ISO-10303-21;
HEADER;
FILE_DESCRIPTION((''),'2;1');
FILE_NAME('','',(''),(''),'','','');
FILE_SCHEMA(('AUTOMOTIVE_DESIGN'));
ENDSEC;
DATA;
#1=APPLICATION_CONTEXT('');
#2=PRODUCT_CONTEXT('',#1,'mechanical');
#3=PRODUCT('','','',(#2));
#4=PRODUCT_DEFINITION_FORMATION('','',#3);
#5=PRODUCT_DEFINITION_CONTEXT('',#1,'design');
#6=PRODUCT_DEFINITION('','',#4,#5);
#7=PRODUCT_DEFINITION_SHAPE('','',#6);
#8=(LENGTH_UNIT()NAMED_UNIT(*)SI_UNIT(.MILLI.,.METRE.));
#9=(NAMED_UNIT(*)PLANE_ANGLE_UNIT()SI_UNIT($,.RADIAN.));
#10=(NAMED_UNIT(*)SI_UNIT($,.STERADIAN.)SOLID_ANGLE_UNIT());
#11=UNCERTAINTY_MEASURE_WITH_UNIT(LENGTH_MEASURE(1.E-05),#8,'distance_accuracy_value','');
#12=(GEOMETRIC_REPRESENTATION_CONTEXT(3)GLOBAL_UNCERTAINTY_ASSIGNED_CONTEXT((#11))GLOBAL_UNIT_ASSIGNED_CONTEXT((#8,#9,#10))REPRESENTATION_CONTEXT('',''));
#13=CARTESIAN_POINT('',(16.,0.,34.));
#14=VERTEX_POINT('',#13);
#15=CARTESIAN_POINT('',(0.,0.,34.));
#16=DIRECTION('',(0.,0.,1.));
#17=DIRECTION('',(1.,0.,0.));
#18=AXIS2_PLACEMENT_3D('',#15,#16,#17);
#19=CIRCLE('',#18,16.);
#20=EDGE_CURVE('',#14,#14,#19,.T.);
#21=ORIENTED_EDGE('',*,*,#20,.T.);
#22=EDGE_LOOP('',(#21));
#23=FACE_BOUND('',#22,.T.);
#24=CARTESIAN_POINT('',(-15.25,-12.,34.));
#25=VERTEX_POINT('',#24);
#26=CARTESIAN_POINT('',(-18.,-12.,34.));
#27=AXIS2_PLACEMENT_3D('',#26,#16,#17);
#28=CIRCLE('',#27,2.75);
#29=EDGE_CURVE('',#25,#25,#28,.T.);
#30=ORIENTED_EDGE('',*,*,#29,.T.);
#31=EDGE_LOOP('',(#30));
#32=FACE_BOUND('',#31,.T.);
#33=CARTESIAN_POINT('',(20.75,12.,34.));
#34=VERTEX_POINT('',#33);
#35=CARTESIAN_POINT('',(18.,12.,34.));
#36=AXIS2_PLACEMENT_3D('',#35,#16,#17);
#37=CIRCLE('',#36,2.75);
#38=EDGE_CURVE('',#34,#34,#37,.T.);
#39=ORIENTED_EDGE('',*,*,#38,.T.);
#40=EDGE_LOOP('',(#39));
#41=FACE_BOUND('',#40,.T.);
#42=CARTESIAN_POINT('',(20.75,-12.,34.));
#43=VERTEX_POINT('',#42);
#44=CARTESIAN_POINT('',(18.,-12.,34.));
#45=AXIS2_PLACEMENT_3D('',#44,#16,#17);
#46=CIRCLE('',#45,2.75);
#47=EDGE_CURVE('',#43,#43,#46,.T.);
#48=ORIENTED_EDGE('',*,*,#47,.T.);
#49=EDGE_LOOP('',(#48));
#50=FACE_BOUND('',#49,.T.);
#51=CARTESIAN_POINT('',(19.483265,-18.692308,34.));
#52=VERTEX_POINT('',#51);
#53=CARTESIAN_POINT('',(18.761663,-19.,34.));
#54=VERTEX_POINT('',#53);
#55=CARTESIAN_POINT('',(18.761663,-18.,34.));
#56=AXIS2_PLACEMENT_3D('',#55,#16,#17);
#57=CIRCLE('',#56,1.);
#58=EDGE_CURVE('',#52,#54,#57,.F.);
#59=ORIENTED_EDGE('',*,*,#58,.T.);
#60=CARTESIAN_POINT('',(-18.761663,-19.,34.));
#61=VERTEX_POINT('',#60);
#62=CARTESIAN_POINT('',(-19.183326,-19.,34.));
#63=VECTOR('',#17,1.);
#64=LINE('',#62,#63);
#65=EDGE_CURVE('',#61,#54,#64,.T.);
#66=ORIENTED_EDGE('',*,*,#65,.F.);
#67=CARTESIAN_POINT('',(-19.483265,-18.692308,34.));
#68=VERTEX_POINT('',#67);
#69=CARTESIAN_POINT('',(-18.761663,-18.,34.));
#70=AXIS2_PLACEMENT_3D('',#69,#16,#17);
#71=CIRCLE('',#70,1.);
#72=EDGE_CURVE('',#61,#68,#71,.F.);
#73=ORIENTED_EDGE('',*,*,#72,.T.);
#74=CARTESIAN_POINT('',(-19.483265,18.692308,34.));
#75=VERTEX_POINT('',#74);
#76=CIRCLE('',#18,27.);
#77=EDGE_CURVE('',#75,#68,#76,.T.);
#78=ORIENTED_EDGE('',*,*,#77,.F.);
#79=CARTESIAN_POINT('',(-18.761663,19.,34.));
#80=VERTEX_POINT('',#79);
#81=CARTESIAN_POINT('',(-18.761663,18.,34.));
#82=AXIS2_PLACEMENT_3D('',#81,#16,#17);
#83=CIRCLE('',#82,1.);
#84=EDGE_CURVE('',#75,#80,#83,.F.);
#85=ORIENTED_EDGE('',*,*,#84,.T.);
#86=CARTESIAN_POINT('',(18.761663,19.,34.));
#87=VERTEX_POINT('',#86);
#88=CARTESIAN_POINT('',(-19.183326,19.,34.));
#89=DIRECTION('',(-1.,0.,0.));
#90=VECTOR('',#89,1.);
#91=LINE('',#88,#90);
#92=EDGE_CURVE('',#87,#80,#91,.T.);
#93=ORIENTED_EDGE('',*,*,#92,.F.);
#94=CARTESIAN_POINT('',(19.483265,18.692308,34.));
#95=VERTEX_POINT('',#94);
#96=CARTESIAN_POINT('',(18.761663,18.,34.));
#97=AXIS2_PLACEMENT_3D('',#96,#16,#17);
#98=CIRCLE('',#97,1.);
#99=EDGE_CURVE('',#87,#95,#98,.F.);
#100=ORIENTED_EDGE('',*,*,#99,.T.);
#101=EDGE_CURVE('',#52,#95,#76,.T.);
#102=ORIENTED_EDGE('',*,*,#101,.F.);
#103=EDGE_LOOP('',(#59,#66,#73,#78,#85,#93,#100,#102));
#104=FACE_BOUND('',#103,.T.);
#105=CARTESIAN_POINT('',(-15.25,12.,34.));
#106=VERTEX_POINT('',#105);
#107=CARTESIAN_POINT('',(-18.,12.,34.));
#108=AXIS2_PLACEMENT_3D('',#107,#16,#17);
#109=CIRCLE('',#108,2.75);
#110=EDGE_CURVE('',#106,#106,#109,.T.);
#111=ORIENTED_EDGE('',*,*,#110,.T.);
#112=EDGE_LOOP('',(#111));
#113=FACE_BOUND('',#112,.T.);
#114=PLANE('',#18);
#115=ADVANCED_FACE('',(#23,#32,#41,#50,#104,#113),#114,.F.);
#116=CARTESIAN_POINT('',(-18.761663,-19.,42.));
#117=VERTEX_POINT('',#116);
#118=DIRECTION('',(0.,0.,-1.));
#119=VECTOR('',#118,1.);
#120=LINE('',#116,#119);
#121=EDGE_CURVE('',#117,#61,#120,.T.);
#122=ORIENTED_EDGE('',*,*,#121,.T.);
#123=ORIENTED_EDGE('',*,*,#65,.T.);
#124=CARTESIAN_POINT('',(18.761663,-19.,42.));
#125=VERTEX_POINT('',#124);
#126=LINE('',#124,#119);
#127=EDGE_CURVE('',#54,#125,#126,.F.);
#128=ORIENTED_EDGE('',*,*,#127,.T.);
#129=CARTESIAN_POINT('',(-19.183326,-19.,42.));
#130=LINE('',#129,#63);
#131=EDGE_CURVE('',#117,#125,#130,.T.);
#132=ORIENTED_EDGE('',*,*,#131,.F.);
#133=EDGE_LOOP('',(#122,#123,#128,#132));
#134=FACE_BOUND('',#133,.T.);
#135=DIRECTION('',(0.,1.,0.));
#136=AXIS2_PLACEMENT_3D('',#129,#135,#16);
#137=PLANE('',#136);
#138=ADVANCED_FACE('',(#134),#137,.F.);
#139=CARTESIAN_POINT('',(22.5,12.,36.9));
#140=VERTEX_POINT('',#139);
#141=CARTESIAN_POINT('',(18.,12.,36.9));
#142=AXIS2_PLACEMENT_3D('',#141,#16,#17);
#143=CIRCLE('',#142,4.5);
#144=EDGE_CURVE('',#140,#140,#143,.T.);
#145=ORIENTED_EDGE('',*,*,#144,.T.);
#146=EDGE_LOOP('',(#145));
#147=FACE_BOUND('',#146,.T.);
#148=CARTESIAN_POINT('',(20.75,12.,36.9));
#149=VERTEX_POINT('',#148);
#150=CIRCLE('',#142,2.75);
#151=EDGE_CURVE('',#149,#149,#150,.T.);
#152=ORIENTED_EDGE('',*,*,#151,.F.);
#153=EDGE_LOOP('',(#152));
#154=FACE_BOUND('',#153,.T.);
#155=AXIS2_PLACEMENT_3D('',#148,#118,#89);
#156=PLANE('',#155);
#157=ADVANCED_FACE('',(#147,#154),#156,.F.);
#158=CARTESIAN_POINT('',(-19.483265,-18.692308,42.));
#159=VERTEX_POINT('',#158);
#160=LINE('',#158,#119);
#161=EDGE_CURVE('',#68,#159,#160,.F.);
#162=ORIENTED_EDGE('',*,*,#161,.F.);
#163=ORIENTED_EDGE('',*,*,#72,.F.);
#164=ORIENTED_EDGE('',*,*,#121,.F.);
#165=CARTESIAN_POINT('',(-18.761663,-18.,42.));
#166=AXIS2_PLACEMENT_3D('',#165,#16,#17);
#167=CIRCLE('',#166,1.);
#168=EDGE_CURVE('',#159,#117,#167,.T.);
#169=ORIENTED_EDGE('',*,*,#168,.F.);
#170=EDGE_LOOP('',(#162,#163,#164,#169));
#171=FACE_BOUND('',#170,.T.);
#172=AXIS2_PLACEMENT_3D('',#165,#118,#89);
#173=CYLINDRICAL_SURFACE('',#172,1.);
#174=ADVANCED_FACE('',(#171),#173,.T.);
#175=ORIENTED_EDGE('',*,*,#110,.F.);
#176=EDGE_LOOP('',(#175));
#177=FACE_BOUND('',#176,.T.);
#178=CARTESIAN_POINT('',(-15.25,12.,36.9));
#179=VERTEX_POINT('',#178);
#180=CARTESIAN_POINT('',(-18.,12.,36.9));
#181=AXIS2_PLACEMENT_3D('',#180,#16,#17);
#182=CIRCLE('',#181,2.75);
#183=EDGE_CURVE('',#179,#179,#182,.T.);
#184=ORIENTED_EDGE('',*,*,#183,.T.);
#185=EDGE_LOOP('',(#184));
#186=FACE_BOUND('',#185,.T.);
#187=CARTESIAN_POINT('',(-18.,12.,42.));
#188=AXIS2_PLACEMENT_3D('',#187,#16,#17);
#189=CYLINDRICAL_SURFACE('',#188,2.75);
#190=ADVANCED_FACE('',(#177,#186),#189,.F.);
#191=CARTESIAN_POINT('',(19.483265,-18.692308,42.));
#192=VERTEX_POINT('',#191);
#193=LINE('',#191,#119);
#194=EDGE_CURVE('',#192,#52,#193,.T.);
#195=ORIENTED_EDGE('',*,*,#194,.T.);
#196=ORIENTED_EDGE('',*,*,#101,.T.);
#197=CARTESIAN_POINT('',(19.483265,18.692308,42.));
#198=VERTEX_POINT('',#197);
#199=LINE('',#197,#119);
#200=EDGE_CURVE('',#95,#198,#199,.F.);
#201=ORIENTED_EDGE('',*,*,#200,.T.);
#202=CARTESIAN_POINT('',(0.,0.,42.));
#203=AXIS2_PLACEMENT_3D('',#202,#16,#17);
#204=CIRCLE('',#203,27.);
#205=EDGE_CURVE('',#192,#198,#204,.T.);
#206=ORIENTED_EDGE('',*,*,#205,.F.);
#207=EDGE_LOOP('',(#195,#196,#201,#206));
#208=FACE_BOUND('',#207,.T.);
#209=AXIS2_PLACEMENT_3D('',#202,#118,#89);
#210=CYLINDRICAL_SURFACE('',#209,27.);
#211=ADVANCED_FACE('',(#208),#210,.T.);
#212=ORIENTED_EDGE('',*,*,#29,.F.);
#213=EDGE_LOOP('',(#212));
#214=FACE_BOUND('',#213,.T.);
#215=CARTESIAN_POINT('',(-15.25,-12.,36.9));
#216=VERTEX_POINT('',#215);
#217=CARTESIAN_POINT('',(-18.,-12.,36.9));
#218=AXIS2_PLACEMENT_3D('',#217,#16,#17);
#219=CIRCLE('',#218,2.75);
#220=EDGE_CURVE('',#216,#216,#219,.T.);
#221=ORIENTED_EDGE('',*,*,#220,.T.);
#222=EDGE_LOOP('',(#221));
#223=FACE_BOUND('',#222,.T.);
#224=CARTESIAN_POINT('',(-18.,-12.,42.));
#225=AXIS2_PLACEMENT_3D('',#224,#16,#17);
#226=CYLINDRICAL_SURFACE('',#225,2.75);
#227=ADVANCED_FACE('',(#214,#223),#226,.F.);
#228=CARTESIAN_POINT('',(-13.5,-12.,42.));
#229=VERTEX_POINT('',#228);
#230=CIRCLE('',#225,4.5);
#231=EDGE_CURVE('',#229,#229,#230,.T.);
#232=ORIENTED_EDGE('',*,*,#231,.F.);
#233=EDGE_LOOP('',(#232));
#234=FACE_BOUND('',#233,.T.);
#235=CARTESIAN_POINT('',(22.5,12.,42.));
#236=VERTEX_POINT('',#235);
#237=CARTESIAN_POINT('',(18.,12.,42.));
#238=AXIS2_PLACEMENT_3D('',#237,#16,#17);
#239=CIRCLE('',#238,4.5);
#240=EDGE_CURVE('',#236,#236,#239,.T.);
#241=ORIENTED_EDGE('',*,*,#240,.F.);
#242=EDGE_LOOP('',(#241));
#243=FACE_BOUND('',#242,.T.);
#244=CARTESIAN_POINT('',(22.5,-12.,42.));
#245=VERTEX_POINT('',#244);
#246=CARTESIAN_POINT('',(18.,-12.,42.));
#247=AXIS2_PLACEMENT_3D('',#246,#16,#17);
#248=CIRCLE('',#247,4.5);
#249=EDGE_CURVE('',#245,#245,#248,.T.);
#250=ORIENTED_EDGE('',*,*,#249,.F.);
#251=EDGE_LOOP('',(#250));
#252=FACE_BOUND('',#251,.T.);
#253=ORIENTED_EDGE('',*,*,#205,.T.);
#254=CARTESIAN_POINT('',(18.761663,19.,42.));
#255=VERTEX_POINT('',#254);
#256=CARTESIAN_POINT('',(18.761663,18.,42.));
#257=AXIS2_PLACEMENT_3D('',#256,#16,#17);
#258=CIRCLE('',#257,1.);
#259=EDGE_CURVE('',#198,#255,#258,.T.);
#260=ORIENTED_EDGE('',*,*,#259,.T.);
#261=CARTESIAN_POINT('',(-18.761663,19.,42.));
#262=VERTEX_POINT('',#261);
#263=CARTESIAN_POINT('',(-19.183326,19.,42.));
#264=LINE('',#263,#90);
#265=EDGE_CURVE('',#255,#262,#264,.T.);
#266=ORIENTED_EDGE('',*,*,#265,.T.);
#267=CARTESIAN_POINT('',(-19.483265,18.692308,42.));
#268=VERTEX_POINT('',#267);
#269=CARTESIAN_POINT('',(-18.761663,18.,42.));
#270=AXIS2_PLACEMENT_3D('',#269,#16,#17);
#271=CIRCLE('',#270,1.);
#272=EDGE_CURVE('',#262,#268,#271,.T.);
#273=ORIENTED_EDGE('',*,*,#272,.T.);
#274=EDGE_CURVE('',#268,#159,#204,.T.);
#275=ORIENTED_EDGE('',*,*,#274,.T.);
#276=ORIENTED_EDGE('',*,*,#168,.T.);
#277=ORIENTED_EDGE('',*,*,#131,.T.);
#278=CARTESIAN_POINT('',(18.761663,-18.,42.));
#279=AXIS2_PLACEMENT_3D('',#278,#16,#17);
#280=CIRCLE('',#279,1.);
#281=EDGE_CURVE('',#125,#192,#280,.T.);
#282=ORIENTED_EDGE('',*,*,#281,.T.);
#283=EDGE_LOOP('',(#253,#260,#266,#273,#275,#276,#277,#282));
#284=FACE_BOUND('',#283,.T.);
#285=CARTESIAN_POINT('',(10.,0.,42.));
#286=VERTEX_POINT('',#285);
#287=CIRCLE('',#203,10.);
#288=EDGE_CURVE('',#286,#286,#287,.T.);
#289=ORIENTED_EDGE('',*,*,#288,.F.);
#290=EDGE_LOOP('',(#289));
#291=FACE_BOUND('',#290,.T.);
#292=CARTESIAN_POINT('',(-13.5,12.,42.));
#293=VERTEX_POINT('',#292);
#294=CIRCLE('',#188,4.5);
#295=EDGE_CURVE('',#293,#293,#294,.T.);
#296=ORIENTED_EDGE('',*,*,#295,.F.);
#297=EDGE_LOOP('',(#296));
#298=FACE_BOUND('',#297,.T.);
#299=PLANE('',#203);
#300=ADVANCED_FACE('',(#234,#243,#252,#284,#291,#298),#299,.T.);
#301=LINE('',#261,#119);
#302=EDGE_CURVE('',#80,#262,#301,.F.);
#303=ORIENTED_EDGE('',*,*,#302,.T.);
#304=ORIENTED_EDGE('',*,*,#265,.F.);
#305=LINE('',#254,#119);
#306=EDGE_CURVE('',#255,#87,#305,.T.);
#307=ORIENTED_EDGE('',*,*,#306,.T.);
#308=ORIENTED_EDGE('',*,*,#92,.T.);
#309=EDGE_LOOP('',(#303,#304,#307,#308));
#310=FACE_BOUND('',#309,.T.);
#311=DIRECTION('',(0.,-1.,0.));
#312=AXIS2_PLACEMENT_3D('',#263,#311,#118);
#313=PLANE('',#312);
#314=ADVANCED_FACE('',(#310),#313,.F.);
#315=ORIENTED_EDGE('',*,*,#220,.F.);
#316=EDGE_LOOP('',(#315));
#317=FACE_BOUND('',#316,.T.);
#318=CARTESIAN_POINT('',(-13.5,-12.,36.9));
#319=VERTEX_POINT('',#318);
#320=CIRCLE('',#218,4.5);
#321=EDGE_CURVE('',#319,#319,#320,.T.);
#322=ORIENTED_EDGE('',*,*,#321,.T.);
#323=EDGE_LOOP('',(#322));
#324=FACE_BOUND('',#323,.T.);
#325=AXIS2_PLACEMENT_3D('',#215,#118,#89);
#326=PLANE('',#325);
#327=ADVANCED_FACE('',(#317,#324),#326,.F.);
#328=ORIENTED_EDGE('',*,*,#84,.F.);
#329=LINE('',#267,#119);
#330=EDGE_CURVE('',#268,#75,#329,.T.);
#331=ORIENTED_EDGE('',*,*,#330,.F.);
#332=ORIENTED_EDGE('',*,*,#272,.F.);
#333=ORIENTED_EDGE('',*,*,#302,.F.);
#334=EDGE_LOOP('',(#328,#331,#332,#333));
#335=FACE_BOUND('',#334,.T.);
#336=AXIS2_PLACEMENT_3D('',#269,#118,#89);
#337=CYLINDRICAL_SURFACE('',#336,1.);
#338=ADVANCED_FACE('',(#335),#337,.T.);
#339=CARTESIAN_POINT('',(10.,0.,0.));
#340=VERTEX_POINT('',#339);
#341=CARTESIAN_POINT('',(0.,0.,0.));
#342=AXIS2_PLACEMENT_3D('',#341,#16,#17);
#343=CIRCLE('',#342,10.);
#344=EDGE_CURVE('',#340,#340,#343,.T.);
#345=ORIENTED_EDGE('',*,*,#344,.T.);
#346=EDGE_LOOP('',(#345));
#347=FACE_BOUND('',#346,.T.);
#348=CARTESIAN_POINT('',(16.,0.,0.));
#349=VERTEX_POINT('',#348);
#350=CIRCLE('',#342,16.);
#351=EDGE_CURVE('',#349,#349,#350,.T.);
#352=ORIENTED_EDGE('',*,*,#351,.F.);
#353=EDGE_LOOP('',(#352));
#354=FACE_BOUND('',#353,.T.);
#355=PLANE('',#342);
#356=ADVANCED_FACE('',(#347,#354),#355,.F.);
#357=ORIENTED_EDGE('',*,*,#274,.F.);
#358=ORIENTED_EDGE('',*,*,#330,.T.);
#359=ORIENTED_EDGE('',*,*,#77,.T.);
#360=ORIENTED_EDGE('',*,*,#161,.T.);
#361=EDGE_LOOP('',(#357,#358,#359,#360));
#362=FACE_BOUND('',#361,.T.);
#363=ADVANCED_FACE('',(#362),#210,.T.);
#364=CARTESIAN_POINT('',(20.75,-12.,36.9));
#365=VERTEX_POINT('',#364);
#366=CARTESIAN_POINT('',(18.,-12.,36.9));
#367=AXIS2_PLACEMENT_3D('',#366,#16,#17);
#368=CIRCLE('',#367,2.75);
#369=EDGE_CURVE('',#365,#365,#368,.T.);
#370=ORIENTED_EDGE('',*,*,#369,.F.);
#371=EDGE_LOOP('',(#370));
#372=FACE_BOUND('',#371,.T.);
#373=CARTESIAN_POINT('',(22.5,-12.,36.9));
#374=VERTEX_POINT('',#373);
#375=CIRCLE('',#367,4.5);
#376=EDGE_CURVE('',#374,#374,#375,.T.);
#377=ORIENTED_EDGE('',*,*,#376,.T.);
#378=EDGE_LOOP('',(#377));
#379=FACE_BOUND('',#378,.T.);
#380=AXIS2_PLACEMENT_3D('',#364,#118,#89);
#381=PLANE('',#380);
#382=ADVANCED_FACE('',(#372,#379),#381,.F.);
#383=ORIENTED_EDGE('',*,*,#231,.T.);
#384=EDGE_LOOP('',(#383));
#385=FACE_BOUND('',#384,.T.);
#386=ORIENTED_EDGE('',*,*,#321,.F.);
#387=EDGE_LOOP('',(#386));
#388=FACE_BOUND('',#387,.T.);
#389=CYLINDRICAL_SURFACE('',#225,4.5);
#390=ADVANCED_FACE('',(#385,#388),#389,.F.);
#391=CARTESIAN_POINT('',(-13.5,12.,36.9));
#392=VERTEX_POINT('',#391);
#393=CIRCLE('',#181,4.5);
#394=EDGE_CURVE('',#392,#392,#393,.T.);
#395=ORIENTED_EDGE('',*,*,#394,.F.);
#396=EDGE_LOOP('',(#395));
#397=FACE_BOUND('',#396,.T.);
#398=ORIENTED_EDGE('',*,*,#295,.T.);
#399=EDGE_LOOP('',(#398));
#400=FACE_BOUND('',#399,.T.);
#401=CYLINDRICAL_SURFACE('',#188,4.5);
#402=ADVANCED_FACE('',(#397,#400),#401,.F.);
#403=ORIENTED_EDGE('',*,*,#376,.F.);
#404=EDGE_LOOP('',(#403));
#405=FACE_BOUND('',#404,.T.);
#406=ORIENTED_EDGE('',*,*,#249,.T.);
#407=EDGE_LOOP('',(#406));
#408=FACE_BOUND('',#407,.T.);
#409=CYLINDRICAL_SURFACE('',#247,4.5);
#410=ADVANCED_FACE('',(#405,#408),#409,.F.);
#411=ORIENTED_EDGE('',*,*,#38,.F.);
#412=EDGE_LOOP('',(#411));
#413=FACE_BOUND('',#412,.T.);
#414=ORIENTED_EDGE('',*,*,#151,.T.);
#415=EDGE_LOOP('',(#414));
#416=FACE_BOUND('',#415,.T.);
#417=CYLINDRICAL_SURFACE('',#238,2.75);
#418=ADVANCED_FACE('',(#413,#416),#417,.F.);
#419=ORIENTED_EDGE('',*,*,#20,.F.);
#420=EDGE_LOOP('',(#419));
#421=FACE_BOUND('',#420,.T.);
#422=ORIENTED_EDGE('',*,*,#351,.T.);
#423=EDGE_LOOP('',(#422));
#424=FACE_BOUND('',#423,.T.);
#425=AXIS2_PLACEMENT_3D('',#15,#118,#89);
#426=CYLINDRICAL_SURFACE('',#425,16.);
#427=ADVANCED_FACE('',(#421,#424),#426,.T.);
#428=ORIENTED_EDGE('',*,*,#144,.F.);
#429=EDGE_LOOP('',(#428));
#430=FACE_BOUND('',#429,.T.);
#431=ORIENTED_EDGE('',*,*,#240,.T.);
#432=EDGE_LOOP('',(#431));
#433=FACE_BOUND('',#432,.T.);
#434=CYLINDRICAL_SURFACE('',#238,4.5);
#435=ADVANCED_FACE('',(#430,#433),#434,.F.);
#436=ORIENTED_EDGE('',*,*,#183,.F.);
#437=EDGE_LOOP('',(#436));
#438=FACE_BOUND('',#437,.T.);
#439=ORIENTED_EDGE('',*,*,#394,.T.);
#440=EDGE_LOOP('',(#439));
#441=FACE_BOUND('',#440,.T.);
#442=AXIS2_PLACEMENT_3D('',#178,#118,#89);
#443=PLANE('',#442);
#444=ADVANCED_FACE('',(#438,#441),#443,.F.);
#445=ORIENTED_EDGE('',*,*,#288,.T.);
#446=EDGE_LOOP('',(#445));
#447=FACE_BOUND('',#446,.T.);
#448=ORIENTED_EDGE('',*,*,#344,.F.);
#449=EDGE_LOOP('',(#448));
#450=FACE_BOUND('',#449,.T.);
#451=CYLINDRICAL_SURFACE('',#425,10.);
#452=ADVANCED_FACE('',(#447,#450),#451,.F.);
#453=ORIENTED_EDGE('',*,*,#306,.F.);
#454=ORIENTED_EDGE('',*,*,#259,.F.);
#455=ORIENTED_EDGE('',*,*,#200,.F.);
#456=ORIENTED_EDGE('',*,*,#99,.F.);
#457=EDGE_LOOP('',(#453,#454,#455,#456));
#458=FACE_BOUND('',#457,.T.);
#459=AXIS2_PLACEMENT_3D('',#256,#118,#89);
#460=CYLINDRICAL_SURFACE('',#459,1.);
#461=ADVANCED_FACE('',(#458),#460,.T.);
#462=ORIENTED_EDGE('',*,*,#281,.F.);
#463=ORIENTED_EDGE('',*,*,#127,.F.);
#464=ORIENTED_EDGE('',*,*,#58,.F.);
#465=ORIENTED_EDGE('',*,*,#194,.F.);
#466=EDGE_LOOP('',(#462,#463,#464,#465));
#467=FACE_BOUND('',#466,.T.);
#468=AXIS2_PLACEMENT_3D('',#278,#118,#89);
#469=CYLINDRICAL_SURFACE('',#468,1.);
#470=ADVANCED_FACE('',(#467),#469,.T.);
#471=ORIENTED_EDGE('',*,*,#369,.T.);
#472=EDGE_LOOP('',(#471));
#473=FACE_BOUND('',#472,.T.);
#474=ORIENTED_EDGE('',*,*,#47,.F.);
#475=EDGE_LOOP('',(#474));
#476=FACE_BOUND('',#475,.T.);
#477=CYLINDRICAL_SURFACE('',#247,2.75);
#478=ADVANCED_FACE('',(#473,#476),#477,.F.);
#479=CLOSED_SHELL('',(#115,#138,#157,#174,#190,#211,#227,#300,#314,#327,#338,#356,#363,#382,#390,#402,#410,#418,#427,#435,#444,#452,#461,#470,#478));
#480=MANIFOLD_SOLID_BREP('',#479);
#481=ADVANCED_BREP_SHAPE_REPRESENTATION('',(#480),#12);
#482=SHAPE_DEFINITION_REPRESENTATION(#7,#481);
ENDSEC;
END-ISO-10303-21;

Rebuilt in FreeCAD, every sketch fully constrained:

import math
import FreeCAD as App
import Part
import Sketcher
Q = App.Units.Quantity


def edges_at(feature, points):
    """Names of the edges that pass closest to the given points."""
    edges = feature.Shape.Edges
    near = lambda p: min(range(len(edges)), key=lambda i: edges[i].distToShape(Part.Vertex(*p))[0])
    return sorted({f"Edge{near(p) + 1}" for p in points})

doc = App.newDocument("Part")
body = doc.addObject("PartDesign::Body", "Body")

# Sketch on XY plane
sketch1 = body.newObject("Sketcher::SketchObject", "Sketch")
sketch1.AttachmentSupport = (doc.getObject("XY_Plane"), [""])
sketch1.MapMode = "FlatFace"
sketch1.addGeometry([
    Part.Circle(App.Vector(0, 0, 0), App.Vector(0, 0, 1), 16),
    Part.Circle(App.Vector(0, 0, 0), App.Vector(0, 0, 1), 10),
], False)
sketch1.addConstraint([
    Sketcher.Constraint("Coincident", 0, 3, -1, 1),
    Sketcher.Constraint("Coincident", 1, 3, -1, 1),
    Sketcher.Constraint("Diameter", 0, Q("32 mm")),
    Sketcher.Constraint("Diameter", 1, Q("20 mm")),
])
pad1 = body.newObject("PartDesign::Pad", "Pad")
pad1.Profile = sketch1
pad1.Length = 34

# Sketch on XY plane
sketch2 = body.newObject("Sketcher::SketchObject", "Sketch001")
sketch2.AttachmentSupport = (doc.getObject("XY_Plane"), [""])
sketch2.MapMode = "FlatFace"
sketch2.AttachmentOffset = App.Placement(App.Vector(0, 0, 34), App.Rotation())
sketch2.addGeometry([
    Part.LineSegment(App.Vector(-19, -19, 0), App.Vector(19, -19, 0)),  # 0
    Part.ArcOfCircle(Part.Circle(App.Vector(0, 0, 0), App.Vector(0, 0, 1), 27), math.radians(-45), math.radians(45)),  # 1
    Part.LineSegment(App.Vector(19, 19, 0), App.Vector(-19, 19, 0)),  # 2
    Part.ArcOfCircle(Part.Circle(App.Vector(0, 0, 0), App.Vector(0, 0, 1), 27), math.radians(135), math.radians(225)),  # 3
    Part.Circle(App.Vector(0, 0, 0), App.Vector(0, 0, 1), 10),  # 4
], False)
sketch2.addConstraint([
    Sketcher.Constraint("Coincident", 0, 2, 1, 1),
    Sketcher.Constraint("Coincident", 1, 2, 2, 1),
    Sketcher.Constraint("Coincident", 2, 2, 3, 1),
    Sketcher.Constraint("Coincident", 3, 2, 0, 1),
    Sketcher.Constraint("Horizontal", 0),
    Sketcher.Constraint("Horizontal", 2),
    Sketcher.Constraint("Coincident", 1, 3, -1, 1),
    Sketcher.Constraint("Coincident", 3, 3, -1, 1),
    Sketcher.Constraint("Coincident", 4, 3, -1, 1),
    Sketcher.Constraint("Equal", 1, 3),
    Sketcher.Constraint("Vertical", 0, 2, 1, 2),
    Sketcher.Constraint("Diameter", 4, Q("20 mm")),
    Sketcher.Constraint("Radius", 1, Q("27 mm")),
    Sketcher.Constraint("DistanceY", 0, 2, -1, 1, Q("19 mm")),
])
pad2 = body.newObject("PartDesign::Pad", "Pad001")
pad2.Profile = sketch2
pad2.Length = 8

# Sketch on XY plane
sketch3 = body.newObject("Sketcher::SketchObject", "Sketch002")
sketch3.AttachmentSupport = (doc.getObject("XY_Plane"), [""])
sketch3.MapMode = "FlatFace"
sketch3.AttachmentOffset = App.Placement(App.Vector(0, 0, 42), App.Rotation())
sketch3.addGeometry([
    Part.Circle(App.Vector(-18, -12, 0), App.Vector(0, 0, 1), 2.8),
    Part.Circle(App.Vector(-18, 12, 0), App.Vector(0, 0, 1), 2.8),
    Part.Circle(App.Vector(18, 12, 0), App.Vector(0, 0, 1), 2.8),
    Part.Circle(App.Vector(18, -12, 0), App.Vector(0, 0, 1), 2.8),
], False)
sketch3.addConstraint([
    Sketcher.Constraint("Equal", 0, 1),
    Sketcher.Constraint("Equal", 1, 2),
    Sketcher.Constraint("Equal", 2, 3),
    Sketcher.Constraint("Symmetric", 0, 3, 2, 3, -1, 1),
    Sketcher.Constraint("Symmetric", 1, 3, 3, 3, -1, 1),
    Sketcher.Constraint("Symmetric", 1, 3, 2, 3, -2),
    Sketcher.Constraint("Diameter", 0, Q("5.5 mm")),
    Sketcher.Constraint("DistanceX", 0, 3, -1, 1, Q("18 mm")),
    Sketcher.Constraint("DistanceY", 0, 3, -1, 1, Q("12 mm")),
])
doc.recompute()
hole = body.newObject("PartDesign::Hole", "Hole")
hole.Profile = sketch3
hole.ThreadType = "None"
hole.Diameter = 5.5
hole.DepthType = "ThroughAll"
hole.HoleCutType = "Counterbore"
hole.HoleCutDiameter = 9
hole.HoleCutDepth = 5.1
doc.recompute()

fillet = body.newObject("PartDesign::Fillet", "Fillet")
fillet.Base = (hole, edges_at(hole, [
    (-19.183, 19, 38),
    (-19.183, -19, 38),
    (19.183, -19, 38),
    (19.183, 19, 38),
]))
fillet.Radius = 1

doc.recompute()
